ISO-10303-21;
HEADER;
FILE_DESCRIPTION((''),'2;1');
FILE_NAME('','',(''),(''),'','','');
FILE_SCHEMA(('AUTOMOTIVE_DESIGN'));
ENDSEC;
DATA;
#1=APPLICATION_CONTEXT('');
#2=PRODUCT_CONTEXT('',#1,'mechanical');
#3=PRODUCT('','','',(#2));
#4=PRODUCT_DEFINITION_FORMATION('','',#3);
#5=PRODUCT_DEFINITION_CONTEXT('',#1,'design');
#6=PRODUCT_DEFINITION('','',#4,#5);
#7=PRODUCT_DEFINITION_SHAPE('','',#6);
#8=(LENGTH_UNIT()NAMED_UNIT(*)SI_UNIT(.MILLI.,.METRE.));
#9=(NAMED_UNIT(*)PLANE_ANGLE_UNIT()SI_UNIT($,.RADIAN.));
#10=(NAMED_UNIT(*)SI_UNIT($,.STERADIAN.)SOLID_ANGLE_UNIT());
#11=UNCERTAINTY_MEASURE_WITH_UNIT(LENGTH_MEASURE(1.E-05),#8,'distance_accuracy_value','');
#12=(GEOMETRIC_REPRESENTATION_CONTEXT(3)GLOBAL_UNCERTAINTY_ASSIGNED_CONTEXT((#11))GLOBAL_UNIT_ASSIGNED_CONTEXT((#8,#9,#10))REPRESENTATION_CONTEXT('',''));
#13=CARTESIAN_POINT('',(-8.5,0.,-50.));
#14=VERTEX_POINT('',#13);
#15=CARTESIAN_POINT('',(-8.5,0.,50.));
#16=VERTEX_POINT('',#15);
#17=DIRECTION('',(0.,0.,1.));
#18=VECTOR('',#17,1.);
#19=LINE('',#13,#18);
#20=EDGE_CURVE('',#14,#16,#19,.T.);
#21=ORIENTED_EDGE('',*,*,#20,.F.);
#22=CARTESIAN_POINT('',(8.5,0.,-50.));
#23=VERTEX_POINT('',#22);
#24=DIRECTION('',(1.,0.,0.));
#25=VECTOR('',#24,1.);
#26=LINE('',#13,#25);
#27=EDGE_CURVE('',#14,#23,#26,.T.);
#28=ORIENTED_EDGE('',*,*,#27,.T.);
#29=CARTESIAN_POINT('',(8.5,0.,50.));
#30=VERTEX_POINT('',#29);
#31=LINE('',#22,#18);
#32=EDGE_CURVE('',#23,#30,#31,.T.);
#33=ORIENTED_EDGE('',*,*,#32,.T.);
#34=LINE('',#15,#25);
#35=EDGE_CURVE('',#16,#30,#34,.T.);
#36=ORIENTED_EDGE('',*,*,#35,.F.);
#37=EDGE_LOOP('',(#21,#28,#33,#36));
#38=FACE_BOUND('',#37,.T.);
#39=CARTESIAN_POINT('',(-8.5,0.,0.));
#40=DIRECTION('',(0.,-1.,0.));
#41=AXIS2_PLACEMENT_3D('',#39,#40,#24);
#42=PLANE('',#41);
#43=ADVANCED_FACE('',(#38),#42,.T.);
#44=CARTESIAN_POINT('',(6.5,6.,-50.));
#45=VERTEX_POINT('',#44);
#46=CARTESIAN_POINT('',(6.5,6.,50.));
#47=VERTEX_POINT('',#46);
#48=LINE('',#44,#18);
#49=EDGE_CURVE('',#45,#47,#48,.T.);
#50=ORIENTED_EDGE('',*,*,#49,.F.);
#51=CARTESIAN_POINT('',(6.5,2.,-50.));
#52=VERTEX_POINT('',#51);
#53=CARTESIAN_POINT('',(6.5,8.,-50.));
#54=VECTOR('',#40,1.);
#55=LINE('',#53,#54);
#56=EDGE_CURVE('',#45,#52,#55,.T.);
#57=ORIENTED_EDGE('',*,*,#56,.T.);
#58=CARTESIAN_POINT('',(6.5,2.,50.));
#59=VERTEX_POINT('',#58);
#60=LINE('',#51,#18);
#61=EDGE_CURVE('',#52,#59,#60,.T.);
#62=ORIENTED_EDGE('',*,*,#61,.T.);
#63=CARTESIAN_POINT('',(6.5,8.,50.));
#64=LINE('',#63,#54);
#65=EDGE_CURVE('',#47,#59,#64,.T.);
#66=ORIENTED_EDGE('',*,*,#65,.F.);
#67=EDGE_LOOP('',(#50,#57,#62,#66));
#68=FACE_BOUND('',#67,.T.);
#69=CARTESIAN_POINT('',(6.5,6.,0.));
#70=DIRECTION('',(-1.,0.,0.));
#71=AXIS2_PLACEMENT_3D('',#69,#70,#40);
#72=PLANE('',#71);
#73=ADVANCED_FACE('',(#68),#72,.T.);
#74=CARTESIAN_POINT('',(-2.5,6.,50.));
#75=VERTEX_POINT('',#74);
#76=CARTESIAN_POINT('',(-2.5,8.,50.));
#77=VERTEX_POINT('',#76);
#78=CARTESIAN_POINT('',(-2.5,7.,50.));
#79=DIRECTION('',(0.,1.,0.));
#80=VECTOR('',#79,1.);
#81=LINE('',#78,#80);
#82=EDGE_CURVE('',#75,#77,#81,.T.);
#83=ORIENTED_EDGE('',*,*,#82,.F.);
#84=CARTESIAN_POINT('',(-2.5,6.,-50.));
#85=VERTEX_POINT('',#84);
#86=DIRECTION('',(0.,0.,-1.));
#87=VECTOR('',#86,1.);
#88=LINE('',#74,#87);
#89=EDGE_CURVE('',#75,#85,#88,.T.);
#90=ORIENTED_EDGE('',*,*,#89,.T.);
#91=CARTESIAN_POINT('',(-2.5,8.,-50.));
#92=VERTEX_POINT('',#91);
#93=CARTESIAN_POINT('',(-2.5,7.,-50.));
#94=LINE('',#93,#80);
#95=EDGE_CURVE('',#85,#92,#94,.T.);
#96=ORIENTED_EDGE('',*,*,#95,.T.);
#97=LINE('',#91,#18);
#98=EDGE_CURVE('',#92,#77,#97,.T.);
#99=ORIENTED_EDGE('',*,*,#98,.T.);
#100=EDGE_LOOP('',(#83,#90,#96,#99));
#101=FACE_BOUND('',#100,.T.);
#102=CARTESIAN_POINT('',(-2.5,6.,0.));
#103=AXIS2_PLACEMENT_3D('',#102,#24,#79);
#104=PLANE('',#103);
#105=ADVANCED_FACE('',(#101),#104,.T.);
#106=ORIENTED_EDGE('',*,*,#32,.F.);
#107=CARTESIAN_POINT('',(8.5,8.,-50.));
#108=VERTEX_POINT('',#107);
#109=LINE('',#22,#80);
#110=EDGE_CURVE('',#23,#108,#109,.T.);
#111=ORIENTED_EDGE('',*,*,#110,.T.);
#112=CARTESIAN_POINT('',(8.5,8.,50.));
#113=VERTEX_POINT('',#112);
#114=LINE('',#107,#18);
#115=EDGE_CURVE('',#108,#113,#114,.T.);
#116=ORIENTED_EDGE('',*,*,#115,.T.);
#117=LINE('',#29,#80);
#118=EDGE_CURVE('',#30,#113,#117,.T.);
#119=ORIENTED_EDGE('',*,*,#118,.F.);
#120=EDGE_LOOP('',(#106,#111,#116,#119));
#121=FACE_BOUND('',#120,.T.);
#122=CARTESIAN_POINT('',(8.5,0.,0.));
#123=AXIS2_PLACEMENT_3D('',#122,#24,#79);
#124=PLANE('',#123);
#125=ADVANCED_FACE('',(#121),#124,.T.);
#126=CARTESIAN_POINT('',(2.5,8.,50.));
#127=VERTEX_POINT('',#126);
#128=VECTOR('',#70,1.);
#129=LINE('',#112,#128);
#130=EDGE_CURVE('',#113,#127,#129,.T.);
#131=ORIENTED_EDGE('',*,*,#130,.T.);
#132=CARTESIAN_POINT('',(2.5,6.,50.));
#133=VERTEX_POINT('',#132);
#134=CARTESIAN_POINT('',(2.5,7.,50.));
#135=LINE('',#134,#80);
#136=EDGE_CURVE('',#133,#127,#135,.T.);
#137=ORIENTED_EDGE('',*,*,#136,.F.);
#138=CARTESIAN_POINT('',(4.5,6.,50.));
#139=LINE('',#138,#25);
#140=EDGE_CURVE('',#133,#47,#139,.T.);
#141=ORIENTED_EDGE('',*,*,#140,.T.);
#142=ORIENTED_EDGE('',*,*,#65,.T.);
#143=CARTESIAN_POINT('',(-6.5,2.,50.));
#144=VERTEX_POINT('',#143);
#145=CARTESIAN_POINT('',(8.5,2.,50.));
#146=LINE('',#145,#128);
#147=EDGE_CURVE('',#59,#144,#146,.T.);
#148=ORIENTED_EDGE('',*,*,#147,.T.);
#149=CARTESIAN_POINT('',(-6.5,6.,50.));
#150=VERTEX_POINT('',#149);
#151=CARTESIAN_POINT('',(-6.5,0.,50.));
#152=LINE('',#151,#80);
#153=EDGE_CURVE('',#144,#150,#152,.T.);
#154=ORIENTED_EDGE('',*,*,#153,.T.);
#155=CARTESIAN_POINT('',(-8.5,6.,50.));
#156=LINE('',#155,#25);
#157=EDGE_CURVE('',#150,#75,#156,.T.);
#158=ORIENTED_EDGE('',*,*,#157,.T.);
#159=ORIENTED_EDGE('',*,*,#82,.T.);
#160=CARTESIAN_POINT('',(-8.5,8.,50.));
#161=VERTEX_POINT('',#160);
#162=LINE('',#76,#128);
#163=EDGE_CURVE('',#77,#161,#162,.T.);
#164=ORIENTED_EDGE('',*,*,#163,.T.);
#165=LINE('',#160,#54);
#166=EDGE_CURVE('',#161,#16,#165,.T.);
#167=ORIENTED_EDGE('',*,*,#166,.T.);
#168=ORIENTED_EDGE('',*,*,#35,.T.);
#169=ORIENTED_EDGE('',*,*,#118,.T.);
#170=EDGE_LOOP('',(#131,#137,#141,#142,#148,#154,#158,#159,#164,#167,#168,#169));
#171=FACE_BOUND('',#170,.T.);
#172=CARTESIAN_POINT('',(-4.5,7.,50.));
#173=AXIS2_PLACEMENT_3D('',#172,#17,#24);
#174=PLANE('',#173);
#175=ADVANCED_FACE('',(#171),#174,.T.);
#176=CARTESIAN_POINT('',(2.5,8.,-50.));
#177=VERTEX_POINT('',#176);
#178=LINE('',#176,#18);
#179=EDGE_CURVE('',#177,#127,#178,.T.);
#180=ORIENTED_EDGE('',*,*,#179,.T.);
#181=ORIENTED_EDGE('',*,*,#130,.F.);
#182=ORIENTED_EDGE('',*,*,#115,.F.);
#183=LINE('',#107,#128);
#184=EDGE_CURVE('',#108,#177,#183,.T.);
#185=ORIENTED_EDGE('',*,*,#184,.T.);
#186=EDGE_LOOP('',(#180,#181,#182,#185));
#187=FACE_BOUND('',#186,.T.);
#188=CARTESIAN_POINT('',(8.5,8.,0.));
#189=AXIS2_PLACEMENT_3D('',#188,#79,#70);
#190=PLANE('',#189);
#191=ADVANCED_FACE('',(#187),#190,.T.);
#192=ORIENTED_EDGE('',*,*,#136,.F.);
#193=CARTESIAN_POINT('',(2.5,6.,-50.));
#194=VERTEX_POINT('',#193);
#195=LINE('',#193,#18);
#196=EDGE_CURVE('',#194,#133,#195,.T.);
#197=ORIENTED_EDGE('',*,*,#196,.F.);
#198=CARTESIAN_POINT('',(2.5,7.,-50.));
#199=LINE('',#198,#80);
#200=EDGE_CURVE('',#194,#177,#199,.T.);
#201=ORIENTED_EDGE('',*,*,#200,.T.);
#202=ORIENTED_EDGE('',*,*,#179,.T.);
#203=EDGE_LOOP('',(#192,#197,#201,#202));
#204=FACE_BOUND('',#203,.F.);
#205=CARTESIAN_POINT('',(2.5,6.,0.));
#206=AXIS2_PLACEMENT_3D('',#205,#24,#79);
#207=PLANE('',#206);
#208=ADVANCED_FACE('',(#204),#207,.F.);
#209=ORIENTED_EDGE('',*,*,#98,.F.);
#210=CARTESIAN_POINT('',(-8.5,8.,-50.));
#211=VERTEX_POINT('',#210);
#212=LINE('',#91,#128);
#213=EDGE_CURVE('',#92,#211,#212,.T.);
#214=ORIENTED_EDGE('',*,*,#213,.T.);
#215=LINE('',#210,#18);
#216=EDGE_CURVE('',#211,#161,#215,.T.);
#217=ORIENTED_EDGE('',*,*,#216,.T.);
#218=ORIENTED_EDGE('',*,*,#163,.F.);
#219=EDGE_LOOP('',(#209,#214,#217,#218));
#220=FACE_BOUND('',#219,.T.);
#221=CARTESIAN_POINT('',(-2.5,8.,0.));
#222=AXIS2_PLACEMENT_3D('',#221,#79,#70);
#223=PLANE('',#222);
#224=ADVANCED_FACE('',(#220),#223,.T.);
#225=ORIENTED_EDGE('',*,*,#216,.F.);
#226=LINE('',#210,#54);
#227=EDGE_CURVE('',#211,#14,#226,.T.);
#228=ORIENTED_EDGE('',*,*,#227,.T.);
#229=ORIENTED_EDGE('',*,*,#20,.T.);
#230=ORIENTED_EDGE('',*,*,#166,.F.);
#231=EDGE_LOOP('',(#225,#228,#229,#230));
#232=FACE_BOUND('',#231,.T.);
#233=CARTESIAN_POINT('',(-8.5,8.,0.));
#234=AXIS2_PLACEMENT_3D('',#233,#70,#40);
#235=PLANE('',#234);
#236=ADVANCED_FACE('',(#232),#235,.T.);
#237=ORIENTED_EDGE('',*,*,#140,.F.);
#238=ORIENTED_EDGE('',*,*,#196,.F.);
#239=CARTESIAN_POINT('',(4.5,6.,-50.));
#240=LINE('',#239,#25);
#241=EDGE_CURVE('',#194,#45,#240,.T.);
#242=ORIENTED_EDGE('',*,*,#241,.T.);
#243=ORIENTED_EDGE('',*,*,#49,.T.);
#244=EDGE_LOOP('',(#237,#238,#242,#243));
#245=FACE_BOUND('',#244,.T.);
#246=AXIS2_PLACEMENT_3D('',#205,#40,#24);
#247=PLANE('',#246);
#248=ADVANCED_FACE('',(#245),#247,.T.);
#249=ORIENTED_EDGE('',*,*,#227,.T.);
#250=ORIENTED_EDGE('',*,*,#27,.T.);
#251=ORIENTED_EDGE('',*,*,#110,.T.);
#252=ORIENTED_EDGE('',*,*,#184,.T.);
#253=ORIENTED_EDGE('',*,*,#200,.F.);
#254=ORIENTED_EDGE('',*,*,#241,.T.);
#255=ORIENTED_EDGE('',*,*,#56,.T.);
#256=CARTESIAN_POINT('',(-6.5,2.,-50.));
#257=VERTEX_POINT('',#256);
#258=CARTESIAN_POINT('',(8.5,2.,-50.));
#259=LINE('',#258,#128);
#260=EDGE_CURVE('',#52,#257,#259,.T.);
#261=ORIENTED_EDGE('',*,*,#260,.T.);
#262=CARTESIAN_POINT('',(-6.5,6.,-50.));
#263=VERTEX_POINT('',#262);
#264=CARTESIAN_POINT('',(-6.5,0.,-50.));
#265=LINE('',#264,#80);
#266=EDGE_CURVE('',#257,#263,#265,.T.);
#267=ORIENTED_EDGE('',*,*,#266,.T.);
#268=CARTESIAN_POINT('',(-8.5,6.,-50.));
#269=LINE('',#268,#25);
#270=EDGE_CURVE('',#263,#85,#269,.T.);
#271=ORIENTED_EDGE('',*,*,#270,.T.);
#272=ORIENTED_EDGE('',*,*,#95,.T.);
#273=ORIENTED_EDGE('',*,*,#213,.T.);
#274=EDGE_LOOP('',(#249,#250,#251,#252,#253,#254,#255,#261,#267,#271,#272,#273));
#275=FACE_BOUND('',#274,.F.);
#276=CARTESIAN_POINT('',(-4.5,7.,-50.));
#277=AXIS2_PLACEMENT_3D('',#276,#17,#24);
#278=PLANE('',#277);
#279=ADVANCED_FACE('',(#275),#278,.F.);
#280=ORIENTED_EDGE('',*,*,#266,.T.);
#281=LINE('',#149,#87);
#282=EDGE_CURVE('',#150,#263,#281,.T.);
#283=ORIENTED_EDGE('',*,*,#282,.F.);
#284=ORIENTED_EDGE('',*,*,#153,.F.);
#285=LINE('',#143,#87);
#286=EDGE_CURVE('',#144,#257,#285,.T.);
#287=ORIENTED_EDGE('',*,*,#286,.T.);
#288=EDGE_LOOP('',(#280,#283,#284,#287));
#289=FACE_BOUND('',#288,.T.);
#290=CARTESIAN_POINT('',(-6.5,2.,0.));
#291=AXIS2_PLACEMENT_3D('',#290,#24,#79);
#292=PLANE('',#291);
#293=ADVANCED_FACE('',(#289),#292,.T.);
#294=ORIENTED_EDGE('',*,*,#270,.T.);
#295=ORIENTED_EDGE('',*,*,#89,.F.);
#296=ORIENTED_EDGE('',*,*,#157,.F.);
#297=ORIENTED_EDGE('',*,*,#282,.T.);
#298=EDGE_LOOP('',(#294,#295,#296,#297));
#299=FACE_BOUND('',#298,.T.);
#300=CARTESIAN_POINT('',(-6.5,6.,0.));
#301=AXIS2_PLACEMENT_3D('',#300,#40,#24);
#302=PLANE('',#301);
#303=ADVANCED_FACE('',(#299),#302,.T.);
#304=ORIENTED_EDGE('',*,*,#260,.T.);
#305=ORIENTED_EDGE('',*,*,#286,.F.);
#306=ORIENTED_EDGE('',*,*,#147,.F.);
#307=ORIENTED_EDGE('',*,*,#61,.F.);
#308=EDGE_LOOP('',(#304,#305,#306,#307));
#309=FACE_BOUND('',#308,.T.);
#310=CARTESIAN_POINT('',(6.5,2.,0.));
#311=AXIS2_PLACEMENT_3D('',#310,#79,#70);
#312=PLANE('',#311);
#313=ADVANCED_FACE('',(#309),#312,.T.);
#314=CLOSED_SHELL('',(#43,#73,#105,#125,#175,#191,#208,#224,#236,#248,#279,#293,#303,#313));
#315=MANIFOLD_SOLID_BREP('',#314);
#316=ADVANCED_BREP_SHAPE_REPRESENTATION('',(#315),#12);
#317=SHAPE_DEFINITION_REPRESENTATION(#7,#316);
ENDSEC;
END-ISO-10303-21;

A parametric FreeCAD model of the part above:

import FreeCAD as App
import Part
import Sketcher


def add_polygon(sketch, points):
    """Adds a closed chain of lines whose ends are joined by coincident constraints."""
    first, n = sketch.GeometryCount, len(points)
    for a, b in zip(points, points[1:] + points[:1]):
        sketch.addGeometry(Part.LineSegment(App.Vector(*a, 0), App.Vector(*b, 0)), False)
    for i in range(n):
        sketch.addConstraint(Sketcher.Constraint("Coincident", first + i, 2, first + (i + 1) % n, 1))

doc = App.newDocument("Part")
params = doc.addObject("Spreadsheet::Sheet", "Params")
for row, (alias, value) in enumerate([
    ("sketch1_width", "6 mm"),
    ("sketch1_width2", "17 mm"),
    ("sketch1_width3", "4 mm"),
    ("sketch1_height", "2 mm"),
    ("sketch1_height2", "8 mm"),
    ("pad1_length", "100 mm"),
], start=1):
    params.set(f"A{row}", alias)
    params.set(f"B{row}", "=" + value)
    params.setAlias(f"B{row}", alias)

body = doc.addObject("PartDesign::Body", "Body")

# Sketch on XY plane
sketch1 = body.newObject("Sketcher::SketchObject", "Sketch")
sketch1.AttachmentSupport = (doc.getObject("XY_Plane"), [""])
sketch1.MapMode = "FlatFace"
add_polygon(sketch1, [(-2.5, 6), (-2.5, 8), (-8.5, 8), (-8.5, 0), (8.5, 0), (8.5, 8), (2.5, 8), (2.5, 6), (6.5, 6), (6.5, 2), (-6.5, 2), (-6.5, 6)])  # lines 0-11
sketch1.addConstraint(Sketcher.Constraint("Vertical", 0))
sketch1.addConstraint(Sketcher.Constraint("Horizontal", 1))
sketch1.addConstraint(Sketcher.Constraint("Vertical", 2))
sketch1.addConstraint(Sketcher.Constraint("Horizontal", 3))
sketch1.addConstraint(Sketcher.Constraint("Vertical", 4))
sketch1.addConstraint(Sketcher.Constraint("Horizontal", 5))
sketch1.addConstraint(Sketcher.Constraint("Vertical", 6))
sketch1.addConstraint(Sketcher.Constraint("Horizontal", 7))
sketch1.addConstraint(Sketcher.Constraint("Vertical", 8))
sketch1.addConstraint(Sketcher.Constraint("Horizontal", 9))
sketch1.addConstraint(Sketcher.Constraint("Vertical", 10))
sketch1.addConstraint(Sketcher.Constraint("Horizontal", 11))
sketch1.addConstraint(Sketcher.Constraint("Symmetric", 2, 2, 3, 2, -1, 1))
sketch1.addConstraint(Sketcher.Constraint("Symmetric", 0, 2, 5, 2, -2))
sketch1.addConstraint(Sketcher.Constraint("Symmetric", 7, 2, 10, 2, -2))
sketch1.addConstraint(Sketcher.Constraint("Equal", 11, 8))
sketch1.addConstraint(Sketcher.Constraint("DistanceX", 1, 2, 1, 1, 6.0))
sketch1.addConstraint(Sketcher.Constraint("DistanceX", 3, 1, 3, 2, 17.0))
sketch1.addConstraint(Sketcher.Constraint("DistanceX", 7, 1, 7, 2, 4.0))
sketch1.addConstraint(Sketcher.Constraint("DistanceY", 0, 1, 0, 2, 2.0))
sketch1.addConstraint(Sketcher.Constraint("DistanceY", 2, 2, 2, 1, 8.0))
sketch1.setExpression("Constraints[28]", "Params.sketch1_width")
sketch1.setExpression("Constraints[29]", "Params.sketch1_width2")
sketch1.setExpression("Constraints[30]", "Params.sketch1_width3")
sketch1.setExpression("Constraints[31]", "Params.sketch1_height")
sketch1.setExpression("Constraints[32]", "Params.sketch1_height2")
pad1 = body.newObject("PartDesign::Pad", "Pad")
pad1.Profile = sketch1
pad1.setExpression("Length", "Params.pad1_length")
pad1.Midplane = True

doc.recompute()
